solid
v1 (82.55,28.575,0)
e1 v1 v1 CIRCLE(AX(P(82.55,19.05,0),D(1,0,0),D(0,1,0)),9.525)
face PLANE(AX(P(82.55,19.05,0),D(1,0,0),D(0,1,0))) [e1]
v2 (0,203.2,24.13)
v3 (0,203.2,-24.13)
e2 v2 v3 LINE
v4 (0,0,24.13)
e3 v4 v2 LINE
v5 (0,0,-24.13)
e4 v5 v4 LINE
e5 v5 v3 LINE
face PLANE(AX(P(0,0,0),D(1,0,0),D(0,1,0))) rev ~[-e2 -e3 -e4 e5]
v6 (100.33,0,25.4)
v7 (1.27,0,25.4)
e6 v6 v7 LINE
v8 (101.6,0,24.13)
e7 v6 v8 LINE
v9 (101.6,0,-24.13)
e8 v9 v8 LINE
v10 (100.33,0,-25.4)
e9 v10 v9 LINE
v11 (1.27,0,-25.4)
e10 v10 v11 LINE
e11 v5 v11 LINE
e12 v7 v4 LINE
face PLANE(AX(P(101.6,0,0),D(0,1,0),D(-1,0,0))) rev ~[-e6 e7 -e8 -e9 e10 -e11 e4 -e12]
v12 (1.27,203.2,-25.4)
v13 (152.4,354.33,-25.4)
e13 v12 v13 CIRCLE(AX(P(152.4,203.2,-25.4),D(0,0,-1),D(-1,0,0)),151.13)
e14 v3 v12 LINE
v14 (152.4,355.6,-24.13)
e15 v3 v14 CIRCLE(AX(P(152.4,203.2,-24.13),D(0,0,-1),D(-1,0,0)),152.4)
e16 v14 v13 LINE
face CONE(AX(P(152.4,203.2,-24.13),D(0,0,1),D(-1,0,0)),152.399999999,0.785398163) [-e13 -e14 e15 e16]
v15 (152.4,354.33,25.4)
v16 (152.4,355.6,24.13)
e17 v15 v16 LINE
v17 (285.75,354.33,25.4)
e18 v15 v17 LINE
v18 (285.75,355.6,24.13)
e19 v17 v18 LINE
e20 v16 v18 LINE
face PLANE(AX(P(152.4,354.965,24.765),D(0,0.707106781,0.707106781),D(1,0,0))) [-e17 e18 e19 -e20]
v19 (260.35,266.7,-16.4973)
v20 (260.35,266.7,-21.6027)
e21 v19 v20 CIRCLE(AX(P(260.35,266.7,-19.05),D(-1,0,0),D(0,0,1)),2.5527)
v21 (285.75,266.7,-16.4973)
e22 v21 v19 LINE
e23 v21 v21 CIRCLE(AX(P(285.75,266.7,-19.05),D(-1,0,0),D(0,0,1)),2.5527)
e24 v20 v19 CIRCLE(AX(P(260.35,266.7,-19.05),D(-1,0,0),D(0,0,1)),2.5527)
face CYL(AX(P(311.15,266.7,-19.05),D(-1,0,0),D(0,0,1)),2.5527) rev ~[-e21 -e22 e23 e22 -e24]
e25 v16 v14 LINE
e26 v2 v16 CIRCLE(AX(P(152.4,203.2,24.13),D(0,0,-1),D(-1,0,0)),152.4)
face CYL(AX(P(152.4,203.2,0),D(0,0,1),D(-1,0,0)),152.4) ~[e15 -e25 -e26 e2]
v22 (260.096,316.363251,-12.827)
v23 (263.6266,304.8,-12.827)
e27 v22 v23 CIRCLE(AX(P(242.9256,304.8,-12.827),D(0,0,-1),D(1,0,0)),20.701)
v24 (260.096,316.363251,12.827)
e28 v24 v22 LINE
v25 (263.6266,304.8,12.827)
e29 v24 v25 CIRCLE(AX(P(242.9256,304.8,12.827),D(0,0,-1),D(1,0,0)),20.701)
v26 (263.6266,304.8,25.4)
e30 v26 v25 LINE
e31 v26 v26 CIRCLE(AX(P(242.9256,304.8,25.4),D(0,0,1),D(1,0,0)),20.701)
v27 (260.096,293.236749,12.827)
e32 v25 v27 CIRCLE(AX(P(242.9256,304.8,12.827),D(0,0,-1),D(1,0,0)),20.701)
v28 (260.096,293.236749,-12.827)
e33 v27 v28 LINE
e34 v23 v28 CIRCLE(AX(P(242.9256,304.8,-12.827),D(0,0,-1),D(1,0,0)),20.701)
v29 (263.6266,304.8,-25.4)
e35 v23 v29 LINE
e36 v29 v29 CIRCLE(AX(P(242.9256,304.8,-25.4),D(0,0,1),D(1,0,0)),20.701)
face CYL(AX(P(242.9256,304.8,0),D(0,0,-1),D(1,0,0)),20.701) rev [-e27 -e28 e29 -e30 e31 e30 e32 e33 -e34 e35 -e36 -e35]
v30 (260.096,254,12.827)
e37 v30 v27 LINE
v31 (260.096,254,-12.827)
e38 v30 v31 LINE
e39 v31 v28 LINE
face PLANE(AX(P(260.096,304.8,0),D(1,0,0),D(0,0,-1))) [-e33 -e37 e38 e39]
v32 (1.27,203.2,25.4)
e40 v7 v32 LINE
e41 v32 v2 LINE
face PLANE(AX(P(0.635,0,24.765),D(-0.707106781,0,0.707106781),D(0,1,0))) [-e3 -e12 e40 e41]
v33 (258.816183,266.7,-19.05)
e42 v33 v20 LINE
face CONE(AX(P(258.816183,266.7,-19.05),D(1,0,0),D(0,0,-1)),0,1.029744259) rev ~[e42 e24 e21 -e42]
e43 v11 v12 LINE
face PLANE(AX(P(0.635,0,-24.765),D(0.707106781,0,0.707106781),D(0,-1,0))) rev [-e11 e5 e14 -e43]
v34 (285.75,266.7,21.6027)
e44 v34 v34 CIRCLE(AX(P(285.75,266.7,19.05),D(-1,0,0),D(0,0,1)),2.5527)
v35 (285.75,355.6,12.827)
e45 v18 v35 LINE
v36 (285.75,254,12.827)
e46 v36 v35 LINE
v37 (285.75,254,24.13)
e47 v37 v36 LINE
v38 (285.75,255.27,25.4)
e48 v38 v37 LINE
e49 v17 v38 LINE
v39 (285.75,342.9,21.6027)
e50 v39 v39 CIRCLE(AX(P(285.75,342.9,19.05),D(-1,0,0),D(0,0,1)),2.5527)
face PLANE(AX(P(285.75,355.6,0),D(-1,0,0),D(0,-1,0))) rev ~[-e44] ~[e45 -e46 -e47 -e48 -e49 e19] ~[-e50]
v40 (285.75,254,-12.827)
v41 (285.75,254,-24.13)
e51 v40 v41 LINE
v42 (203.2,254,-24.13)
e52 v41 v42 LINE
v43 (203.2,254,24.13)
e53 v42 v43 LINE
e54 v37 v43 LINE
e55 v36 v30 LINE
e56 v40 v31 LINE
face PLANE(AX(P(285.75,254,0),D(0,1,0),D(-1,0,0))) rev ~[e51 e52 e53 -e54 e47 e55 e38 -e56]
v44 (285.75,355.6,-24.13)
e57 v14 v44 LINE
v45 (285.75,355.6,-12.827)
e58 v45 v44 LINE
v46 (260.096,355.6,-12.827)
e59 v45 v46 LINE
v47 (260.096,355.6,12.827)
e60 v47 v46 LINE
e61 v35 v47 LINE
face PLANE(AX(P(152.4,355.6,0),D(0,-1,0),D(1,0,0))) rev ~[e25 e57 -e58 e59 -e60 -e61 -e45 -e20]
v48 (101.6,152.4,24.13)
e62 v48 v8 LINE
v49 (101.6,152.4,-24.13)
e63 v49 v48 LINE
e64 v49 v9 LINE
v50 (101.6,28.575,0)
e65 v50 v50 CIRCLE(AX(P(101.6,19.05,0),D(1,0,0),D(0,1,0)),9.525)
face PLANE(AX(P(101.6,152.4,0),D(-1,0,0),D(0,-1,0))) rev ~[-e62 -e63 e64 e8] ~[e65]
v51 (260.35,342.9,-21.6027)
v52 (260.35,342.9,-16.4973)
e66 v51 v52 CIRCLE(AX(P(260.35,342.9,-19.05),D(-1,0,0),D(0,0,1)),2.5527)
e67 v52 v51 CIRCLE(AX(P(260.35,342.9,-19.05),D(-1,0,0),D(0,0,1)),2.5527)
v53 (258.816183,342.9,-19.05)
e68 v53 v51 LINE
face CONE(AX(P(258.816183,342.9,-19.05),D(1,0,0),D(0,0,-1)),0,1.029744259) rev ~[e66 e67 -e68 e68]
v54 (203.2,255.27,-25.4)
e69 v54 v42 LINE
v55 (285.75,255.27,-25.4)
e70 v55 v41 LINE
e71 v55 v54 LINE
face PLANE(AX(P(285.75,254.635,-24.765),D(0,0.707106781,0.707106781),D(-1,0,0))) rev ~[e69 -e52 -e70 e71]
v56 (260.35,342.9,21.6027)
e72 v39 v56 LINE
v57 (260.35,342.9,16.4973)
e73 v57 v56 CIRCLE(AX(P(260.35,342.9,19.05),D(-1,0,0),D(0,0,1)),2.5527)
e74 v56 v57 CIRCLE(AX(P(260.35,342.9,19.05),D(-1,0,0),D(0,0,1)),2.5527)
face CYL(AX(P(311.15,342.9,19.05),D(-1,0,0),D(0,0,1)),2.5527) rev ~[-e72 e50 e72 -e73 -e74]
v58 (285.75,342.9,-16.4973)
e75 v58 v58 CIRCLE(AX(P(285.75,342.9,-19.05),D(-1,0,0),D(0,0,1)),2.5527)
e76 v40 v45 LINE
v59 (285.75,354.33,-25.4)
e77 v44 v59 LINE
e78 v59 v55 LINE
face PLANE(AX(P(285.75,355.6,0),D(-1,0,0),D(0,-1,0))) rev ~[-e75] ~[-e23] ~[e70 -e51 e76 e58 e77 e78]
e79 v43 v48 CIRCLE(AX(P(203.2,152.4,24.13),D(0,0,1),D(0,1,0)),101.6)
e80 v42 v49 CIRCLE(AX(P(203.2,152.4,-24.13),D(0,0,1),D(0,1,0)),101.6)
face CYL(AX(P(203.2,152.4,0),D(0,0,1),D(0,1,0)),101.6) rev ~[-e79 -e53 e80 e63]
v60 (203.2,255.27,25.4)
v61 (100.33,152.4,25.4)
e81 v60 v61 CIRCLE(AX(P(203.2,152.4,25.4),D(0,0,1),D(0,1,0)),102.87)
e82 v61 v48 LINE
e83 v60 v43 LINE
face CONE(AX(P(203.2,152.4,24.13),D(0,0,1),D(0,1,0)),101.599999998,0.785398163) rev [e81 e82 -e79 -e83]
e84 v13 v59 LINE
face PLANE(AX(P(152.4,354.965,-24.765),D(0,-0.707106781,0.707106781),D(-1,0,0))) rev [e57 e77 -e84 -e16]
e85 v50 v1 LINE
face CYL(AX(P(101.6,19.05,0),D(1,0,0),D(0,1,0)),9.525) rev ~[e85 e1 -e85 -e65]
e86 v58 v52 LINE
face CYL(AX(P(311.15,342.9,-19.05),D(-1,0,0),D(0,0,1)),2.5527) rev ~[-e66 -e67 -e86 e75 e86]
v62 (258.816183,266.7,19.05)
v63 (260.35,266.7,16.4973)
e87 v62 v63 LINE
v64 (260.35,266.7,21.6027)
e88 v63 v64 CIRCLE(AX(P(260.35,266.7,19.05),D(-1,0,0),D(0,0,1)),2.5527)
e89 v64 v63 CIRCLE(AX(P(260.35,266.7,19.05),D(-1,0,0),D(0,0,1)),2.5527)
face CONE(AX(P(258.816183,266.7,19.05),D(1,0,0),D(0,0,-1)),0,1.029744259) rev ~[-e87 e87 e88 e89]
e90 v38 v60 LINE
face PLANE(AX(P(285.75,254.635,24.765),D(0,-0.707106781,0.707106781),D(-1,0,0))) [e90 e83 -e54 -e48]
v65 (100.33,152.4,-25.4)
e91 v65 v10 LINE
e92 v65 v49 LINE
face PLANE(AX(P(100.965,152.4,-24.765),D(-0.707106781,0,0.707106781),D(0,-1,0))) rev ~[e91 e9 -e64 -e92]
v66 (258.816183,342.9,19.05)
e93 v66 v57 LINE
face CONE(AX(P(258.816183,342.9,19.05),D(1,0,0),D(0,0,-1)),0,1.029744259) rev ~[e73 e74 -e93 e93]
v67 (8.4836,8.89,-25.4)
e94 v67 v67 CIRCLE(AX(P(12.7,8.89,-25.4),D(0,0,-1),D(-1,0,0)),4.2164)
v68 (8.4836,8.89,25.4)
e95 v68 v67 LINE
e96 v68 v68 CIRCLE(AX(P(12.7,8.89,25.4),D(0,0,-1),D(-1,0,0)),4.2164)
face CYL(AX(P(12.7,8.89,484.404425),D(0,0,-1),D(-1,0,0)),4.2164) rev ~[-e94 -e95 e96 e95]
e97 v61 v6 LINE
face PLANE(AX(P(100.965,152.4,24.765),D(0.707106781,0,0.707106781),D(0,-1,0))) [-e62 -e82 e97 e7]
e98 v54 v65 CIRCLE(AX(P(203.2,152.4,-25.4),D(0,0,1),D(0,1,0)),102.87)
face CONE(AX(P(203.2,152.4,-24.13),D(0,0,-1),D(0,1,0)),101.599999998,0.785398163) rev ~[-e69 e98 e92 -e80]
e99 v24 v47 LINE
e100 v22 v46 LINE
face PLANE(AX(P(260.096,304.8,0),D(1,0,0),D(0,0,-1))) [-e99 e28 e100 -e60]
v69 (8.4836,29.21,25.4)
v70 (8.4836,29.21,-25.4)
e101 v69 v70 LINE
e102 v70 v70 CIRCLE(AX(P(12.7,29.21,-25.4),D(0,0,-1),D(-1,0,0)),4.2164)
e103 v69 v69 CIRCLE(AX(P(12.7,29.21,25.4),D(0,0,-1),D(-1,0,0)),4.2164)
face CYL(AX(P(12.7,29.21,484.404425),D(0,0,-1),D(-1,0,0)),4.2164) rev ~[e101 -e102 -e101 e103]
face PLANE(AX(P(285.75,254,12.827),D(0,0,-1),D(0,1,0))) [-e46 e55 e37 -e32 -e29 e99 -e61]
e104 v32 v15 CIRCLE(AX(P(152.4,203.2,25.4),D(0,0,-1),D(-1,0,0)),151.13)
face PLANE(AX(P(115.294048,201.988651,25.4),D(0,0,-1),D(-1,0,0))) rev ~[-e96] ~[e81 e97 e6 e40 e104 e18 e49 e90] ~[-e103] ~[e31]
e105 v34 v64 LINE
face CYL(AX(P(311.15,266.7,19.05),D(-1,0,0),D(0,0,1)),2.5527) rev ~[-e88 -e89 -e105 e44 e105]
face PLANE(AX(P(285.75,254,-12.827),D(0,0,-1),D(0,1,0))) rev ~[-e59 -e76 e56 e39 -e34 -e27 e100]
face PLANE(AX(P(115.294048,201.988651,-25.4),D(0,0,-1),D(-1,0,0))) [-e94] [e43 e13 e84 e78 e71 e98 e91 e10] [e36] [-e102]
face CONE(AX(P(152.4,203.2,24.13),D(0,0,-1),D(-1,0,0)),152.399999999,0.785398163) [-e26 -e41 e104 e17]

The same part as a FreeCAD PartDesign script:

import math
import FreeCAD as App
import Part
import Sketcher
from FreeCAD import Vector
Q = App.Units.Quantity


def edges_at(feature, points):
    """Names of the edges that pass closest to the given points."""
    edges = feature.Shape.Edges
    near = lambda p: min(range(len(edges)), key=lambda i: edges[i].distToShape(Part.Vertex(*p))[0])
    return sorted({f"Edge{near(p) + 1}" for p in points})

doc = App.newDocument("Part")
body = doc.addObject("PartDesign::Body", "Body")

# Sketch on XY plane
sketch1 = body.newObject("Sketcher::SketchObject", "Sketch")
sketch1.AttachmentSupport = (doc.getObject("XY_Plane"), [""])
sketch1.MapMode = "FlatFace"
sketch1.addGeometry([
    Part.LineSegment(Vector(0, 203.2, 0), Vector(0, 0, 0)),  # 0
    Part.LineSegment(Vector(0, 0, 0), Vector(101.6, 0, 0)),  # 1
    Part.LineSegment(Vector(101.6, 0, 0), Vector(101.6, 152.4, 0)),  # 2
    Part.ArcOfCircle(Part.Circle(Vector(203.2, 152.4, 0), Vector(0, 0, 1), 101.6), math.radians(90), math.radians(180)),  # 3
    Part.LineSegment(Vector(203.2, 254, 0), Vector(285.75, 254, 0)),  # 4
    Part.LineSegment(Vector(285.75, 254, 0), Vector(285.75, 355.6, 0)),  # 5
    Part.LineSegment(Vector(285.75, 355.6, 0), Vector(152.4, 355.6, 0)),  # 6
    Part.ArcOfCircle(Part.Circle(Vector(152.4, 203.2, 0), Vector(0, 0, 1), 152.4), math.radians(90), math.radians(180)),  # 7
    Part.Circle(Vector(242.9256, 304.8, 0), Vector(0, 0, 1), 20.701),  # 8
], False)
sketch1.addConstraint([
    Sketcher.Constraint("Coincident", 0, 2, 1, 1),
    Sketcher.Constraint("Coincident", 1, 2, 2, 1),
    Sketcher.Constraint("Tangent", 2, 2, 3, 2),
    Sketcher.Constraint("Tangent", 3, 1, 4, 1),
    Sketcher.Constraint("Coincident", 4, 2, 5, 1),
    Sketcher.Constraint("Coincident", 5, 2, 6, 1),
    Sketcher.Constraint("Tangent", 6, 2, 7, 1),
    Sketcher.Constraint("Tangent", 7, 2, 0, 1),
    Sketcher.Constraint("Vertical", 0),
    Sketcher.Constraint("Horizontal", 1),
    Sketcher.Constraint("Vertical", 2),
    Sketcher.Constraint("Horizontal", 4),
    Sketcher.Constraint("Vertical", 5),
    Sketcher.Constraint("Horizontal", 6),
    Sketcher.Constraint("Coincident", 0, 2, -1, 1),
    Sketcher.Constraint("Equal", 1, 5),
    Sketcher.Constraint("Radius", 3, Q("4 in")),
    Sketcher.Constraint("Radius", 7, Q("6 in")),
    Sketcher.Constraint("Diameter", 8, Q("1.63 in")),
    Sketcher.Constraint("DistanceX", 1, 1, 1, 2, Q("4 in")),
    Sketcher.Constraint("DistanceY", 0, 2, 0, 1, Q("8 in")),
    Sketcher.Constraint("DistanceY", -1, 1, 8, 3, Q("12 in")),
    Sketcher.Constraint("DistanceX", 4, 1, 4, 2, Q("3.25 in")),
    Sketcher.Constraint("DistanceX", -1, 1, 8, 3, Q("9.564 in")),
])
pad1 = body.newObject("PartDesign::Pad", "Pad")
pad1.Profile = sketch1
pad1.Length = Q("2 in")
pad1.Midplane = True

# Sketch on YZ plane
sketch2 = body.newObject("Sketcher::SketchObject", "Sketch001")
sketch2.AttachmentSupport = (doc.getObject("YZ_Plane"), [""])
sketch2.MapMode = "FlatFace"
sketch2.AttachmentOffset = App.Placement(Vector(0, 0, 11.25 * 25.4), App.Rotation())
sketch2.addGeometry([
    Part.LineSegment(Vector(355.6, 12.827, 0), Vector(254, 12.827, 0)),
    Part.LineSegment(Vector(254, 12.827, 0), Vector(254, -12.827, 0)),
    Part.LineSegment(Vector(254, -12.827, 0), Vector(355.6, -12.827, 0)),
    Part.LineSegment(Vector(355.6, -12.827, 0), Vector(355.6, 12.827, 0)),
], False)
sketch2.addConstraint([
    Sketcher.Constraint("Coincident", 0, 2, 1, 1),
    Sketcher.Constraint("Coincident", 1, 2, 2, 1),
    Sketcher.Constraint("Coincident", 2, 2, 3, 1),
    Sketcher.Constraint("Coincident", 3, 2, 0, 1),
    Sketcher.Constraint("Horizontal", 0),
    Sketcher.Constraint("Vertical", 1),
    Sketcher.Constraint("Horizontal", 2),
    Sketcher.Constraint("Vertical", 3),
    Sketcher.Constraint("DistanceX", 0, 2, 0, 1, Q("4 in")),
    Sketcher.Constraint("DistanceX", -1, 1, 0, 2, Q("10 in")),
    Sketcher.Constraint("DistanceY", 1, 2, 1, 1, Q("1.01 in")),
    Sketcher.Constraint("DistanceY", -1, 1, 0, 2, Q("0.505 in")),
])
pocket1 = body.newObject("PartDesign::Pocket", "Pocket")
pocket1.Profile = sketch2
pocket1.Length = Q("1.01 in")

# Sketch on YZ plane
sketch3 = body.newObject("Sketcher::SketchObject", "Sketch002")
sketch3.AttachmentSupport = (doc.getObject("YZ_Plane"), [""])
sketch3.MapMode = "FlatFace"
sketch3.AttachmentOffset = App.Placement(Vector(0, 0, 11.25 * 25.4), App.Rotation())
sketch3.addGeometry([
    Part.Circle(Vector(342.9, -19.05, 0), Vector(0, 0, 1), 2.5527),
    Part.Circle(Vector(342.9, 19.05, 0), Vector(0, 0, 1), 2.5527),
    Part.Circle(Vector(266.7, 19.05, 0), Vector(0, 0, 1), 2.5527),
    Part.Circle(Vector(266.7, -19.05, 0), Vector(0, 0, 1), 2.5527),
], False)
sketch3.addConstraint([
    Sketcher.Constraint("Equal", 0, 1),
    Sketcher.Constraint("Equal", 1, 2),
    Sketcher.Constraint("Equal", 2, 3),
    Sketcher.Constraint("Symmetric", 0, 3, 1, 3, -1),
    Sketcher.Constraint("Symmetric", 2, 3, 3, 3, -1),
    Sketcher.Constraint("Horizontal", 1, 3, 2, 3),
    Sketcher.Constraint("Diameter", 0, Q("0.201 in")),
    Sketcher.Constraint("DistanceX", 2, 3, 1, 3, Q("3 in")),
    Sketcher.Constraint("DistanceX", -1, 1, 0, 3, Q("13.5 in")),
    Sketcher.Constraint("DistanceY", 0, 3, 1, 3, Q("1.5 in")),
])
doc.recompute()
hole = body.newObject("PartDesign::Hole", "Hole")
hole.Profile = sketch3
hole.ThreadType = "None"
hole.Diameter = Q("0.201 in")
hole.DepthType = "Dimension"
hole.Depth = Q("1 in")
hole.DrillPoint = "Angled"
hole.DrillPointAngle = 118

# Sketch on XY plane
sketch4 = body.newObject("Sketcher::SketchObject", "Sketch003")
sketch4.AttachmentSupport = (doc.getObject("XY_Plane"), [""])
sketch4.MapMode = "FlatFace"
sketch4.AttachmentOffset = App.Placement(Vector(0, 0, 1 * 25.4), App.Rotation())
sketch4.addGeometry([
    Part.Circle(Vector(12.7, 29.21, 0), Vector(0, 0, 1), 4.2164),
    Part.Circle(Vector(12.7, 8.89, 0), Vector(0, 0, 1), 4.2164),
], False)
sketch4.addConstraint([
    Sketcher.Constraint("Equal", 0, 1),
    Sketcher.Constraint("Vertical", 0, 3, 1, 3),
    Sketcher.Constraint("Diameter", 0, Q("0.332 in")),
    Sketcher.Constraint("DistanceX", -1, 1, 0, 3, Q("0.5 in")),
    Sketcher.Constraint("DistanceY", 1, 3, 0, 3, Q("0.8 in")),
    Sketcher.Constraint("DistanceY", -1, 1, 0, 3, Q("1.15 in")),
])
doc.recompute()
hole2 = body.newObject("PartDesign::Hole", "Hole001")
hole2.Profile = sketch4
hole2.ThreadType = "None"
hole2.Diameter = Q("0.332 in")
hole2.DepthType = "ThroughAll"

# Sketch on YZ plane
sketch5 = body.newObject("Sketcher::SketchObject", "Sketch004")
sketch5.AttachmentSupport = (doc.getObject("YZ_Plane"), [""])
sketch5.MapMode = "FlatFace"
sketch5.AttachmentOffset = App.Placement(Vector(0, 0, 4 * 25.4), App.Rotation())
sketch5.addGeometry(Part.Circle(Vector(19.05, 0, 0), Vector(0, 0, 1), 9.525), False)
sketch5.addConstraint([
    Sketcher.Constraint("PointOnObject", 0, 3, -1),
    Sketcher.Constraint("Diameter", 0, Q("0.75 in")),
    Sketcher.Constraint("DistanceX", -1, 1, 0, 3, Q("0.75 in")),
])
pocket2 = body.newObject("PartDesign::Pocket", "Pocket001")
pocket2.Profile = sketch5
pocket2.Length = Q("0.75 in")
doc.recompute()

chamfer = body.newObject("PartDesign::Chamfer", "Chamfer")
chamfer.Base = (pocket2, edges_at(pocket2, [
    (244.475, 254, -25.4),
    (131.358, 224.242, -25.4),
    (101.6, 76.2, -25.4),
    (131.358, 224.242, 25.4),
    (244.475, 254, 25.4),
    (219.075, 355.6, 25.4),
    (44.637, 310.963, 25.4),
    (0, 101.6, 25.4),
    (0, 101.6, -25.4),
    (101.6, 76.2, 25.4),
    (44.637, 310.963, -25.4),
    (219.075, 355.6, -25.4),
]))
chamfer.Size = Q("0.05 in")

doc.recompute()
